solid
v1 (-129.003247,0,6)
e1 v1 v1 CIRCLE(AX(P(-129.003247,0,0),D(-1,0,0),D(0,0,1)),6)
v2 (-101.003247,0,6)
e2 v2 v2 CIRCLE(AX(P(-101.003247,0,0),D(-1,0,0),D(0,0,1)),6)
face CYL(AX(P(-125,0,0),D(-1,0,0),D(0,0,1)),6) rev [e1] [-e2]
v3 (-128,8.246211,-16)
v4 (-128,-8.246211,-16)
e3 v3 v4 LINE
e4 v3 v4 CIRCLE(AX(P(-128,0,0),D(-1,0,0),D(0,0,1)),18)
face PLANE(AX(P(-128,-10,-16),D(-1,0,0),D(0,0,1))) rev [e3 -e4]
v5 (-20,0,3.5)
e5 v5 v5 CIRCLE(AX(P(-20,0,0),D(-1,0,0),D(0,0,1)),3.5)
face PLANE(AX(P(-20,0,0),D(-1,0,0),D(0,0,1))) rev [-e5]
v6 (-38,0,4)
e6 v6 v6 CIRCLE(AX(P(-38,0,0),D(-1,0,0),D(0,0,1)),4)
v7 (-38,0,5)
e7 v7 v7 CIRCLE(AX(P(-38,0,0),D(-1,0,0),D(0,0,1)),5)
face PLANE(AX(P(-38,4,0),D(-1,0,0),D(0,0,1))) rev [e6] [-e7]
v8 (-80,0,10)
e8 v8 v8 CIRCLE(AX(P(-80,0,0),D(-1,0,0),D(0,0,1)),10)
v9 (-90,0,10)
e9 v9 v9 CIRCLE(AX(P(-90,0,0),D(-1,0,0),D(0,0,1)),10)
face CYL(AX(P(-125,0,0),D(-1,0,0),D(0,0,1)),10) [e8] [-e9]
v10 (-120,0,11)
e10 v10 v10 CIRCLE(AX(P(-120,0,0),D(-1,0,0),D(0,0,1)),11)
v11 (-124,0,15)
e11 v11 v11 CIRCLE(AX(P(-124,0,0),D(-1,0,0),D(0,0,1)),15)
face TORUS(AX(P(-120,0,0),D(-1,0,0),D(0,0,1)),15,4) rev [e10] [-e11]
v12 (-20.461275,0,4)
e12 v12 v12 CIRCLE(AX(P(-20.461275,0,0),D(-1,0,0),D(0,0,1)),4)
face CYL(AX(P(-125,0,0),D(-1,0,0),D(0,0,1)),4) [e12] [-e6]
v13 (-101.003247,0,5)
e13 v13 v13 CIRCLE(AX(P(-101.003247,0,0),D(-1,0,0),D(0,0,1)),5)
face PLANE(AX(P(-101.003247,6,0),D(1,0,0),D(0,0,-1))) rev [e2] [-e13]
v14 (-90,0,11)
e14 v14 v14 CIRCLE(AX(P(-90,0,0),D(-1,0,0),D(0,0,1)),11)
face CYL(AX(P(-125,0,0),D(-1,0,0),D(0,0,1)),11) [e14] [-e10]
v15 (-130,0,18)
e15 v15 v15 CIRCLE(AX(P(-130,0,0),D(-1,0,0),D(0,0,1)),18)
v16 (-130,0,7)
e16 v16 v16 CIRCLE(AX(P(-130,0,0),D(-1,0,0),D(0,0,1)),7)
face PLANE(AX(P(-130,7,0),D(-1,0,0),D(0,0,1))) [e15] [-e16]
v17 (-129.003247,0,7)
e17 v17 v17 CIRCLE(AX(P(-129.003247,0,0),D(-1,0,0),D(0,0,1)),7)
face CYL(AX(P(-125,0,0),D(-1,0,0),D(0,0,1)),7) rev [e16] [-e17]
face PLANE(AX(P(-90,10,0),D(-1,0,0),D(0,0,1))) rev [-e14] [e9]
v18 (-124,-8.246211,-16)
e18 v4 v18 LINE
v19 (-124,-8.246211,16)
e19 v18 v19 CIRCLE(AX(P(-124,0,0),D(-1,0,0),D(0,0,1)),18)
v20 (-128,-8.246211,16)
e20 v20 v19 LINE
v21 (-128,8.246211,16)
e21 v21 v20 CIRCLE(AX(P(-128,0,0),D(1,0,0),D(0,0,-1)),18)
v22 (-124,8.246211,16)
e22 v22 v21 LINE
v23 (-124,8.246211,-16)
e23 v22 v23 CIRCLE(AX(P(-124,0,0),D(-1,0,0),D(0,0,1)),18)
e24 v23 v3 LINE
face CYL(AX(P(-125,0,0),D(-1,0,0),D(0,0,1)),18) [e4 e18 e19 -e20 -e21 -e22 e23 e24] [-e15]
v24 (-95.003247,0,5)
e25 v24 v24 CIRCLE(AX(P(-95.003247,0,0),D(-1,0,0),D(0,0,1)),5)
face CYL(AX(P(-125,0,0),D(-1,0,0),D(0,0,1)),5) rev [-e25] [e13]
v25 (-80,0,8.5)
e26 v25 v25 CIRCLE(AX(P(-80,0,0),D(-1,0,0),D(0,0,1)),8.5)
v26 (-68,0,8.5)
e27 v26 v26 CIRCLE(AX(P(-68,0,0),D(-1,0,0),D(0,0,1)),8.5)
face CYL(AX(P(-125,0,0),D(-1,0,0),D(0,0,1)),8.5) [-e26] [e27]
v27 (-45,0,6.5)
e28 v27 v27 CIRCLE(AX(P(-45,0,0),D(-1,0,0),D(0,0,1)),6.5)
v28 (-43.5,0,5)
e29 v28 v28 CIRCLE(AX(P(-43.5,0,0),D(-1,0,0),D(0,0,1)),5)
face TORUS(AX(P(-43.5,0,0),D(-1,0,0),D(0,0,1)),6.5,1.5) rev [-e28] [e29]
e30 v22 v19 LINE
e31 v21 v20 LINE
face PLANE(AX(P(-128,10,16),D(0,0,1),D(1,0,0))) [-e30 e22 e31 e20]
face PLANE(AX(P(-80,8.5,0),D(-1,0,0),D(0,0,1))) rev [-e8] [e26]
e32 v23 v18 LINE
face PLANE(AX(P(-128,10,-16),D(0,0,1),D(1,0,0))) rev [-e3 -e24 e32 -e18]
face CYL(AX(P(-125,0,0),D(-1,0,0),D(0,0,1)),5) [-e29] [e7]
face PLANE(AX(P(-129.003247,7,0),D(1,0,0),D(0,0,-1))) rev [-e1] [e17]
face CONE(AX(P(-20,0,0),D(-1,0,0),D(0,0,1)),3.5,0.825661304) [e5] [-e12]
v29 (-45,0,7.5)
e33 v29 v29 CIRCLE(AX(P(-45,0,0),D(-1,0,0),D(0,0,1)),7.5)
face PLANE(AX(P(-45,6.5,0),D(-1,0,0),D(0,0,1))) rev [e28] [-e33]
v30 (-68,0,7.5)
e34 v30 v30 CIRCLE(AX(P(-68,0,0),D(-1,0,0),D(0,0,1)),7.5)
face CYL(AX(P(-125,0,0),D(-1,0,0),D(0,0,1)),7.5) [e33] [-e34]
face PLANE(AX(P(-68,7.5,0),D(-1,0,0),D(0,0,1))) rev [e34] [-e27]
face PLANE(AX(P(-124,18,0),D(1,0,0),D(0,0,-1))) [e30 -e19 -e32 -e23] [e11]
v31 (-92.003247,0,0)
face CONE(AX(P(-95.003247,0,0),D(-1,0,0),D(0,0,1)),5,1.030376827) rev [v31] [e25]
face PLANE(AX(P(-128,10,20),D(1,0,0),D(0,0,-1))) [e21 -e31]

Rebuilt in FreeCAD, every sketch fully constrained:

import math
import FreeCAD as App
import Part
import Sketcher

V = App.Vector


def add_polygon(sketch, points):
    """Adds a closed chain of lines whose ends are joined by coincident constraints."""
    first, n = sketch.GeometryCount, len(points)
    for a, b in zip(points, points[1:] + points[:1]):
        sketch.addGeometry(Part.LineSegment(App.Vector(*a, 0), App.Vector(*b, 0)), False)
    for i in range(n):
        sketch.addConstraint(Sketcher.Constraint("Coincident", first + i, 2, first + (i + 1) % n, 1))

doc = App.newDocument("Part")
body = doc.addObject("PartDesign::Body", "Body")

sketch1 = doc.addObject("Sketcher::SketchObject", "Sketch")
body.addObject(sketch1)
sketch1.AttachmentSupport = (doc.XY_Plane, [""])
sketch1.MapMode = "FlatFace"
sketch1.addGeometry([
    Part.LineSegment(V(-130, 18, 0), V(-130, 7, 0)),
    Part.LineSegment(V(-130, 7, 0), V(-129, 7, 0)),
    Part.LineSegment(V(-129, 7, 0), V(-129, 6, 0)),
    Part.LineSegment(V(-129, 6, 0), V(-101, 6, 0)),
    Part.LineSegment(V(-101, 6, 0), V(-101, 5, 0)),
    Part.LineSegment(V(-101, 5, 0), V(-95, 5, 0)),
    Part.LineSegment(V(-95, 5, 0), V(-92, 0, 0)),
    Part.LineSegment(V(-92, 0, 0), V(-20, 0, 0)),
    Part.LineSegment(V(-20, 0, 0), V(-20, 3.5, 0)),
    Part.LineSegment(V(-20, 3.5, 0), V(-20.5, 4, 0)),
    Part.LineSegment(V(-20.5, 4, 0), V(-38, 4, 0)),
    Part.LineSegment(V(-38, 4, 0), V(-38, 5, 0)),
    Part.LineSegment(V(-38, 5, 0), V(-43.5, 5, 0)),
    Part.ArcOfCircle(Part.Circle(V(-43.5, 6.5, 0), V(0, 0, 1), 1.5), math.radians(180), math.radians(270)),
    Part.LineSegment(V(-45, 6.5, 0), V(-45, 7.5, 0)),
    Part.LineSegment(V(-45, 7.5, 0), V(-68, 7.5, 0)),
    Part.LineSegment(V(-68, 7.5, 0), V(-68, 8.5, 0)),
    Part.LineSegment(V(-68, 8.5, 0), V(-80, 8.5, 0)),
    Part.LineSegment(V(-80, 8.5, 0), V(-80, 10, 0)),
    Part.LineSegment(V(-80, 10, 0), V(-90, 10, 0)),
    Part.LineSegment(V(-90, 10, 0), V(-90, 11, 0)),
    Part.LineSegment(V(-90, 11, 0), V(-120, 11, 0)),
    Part.ArcOfCircle(Part.Circle(V(-120, 15, 0), V(0, 0, 1), 4), math.radians(180), math.radians(270)),
    Part.LineSegment(V(-124, 15, 0), V(-124, 18, 0)),
    Part.LineSegment(V(-124, 18, 0), V(-130, 18, 0)),
], False)
sketch1.addConstraint([
    Sketcher.Constraint("Coincident", 0, 2, 1, 1),
    Sketcher.Constraint("Coincident", 1, 2, 2, 1),
    Sketcher.Constraint("Coincident", 2, 2, 3, 1),
    Sketcher.Constraint("Coincident", 3, 2, 4, 1),
    Sketcher.Constraint("Coincident", 4, 2, 5, 1),
    Sketcher.Constraint("Coincident", 5, 2, 6, 1),
    Sketcher.Constraint("Coincident", 6, 2, 7, 1),
    Sketcher.Constraint("Coincident", 7, 2, 8, 1),
    Sketcher.Constraint("Coincident", 8, 2, 9, 1),
    Sketcher.Constraint("Coincident", 9, 2, 10, 1),
    Sketcher.Constraint("Coincident", 10, 2, 11, 1),
    Sketcher.Constraint("Coincident", 11, 2, 12, 1),
    Sketcher.Constraint("Tangent", 12, 2, 13, 2),
    Sketcher.Constraint("Tangent", 13, 1, 14, 1),
    Sketcher.Constraint("Coincident", 14, 2, 15, 1),
    Sketcher.Constraint("Coincident", 15, 2, 16, 1),
    Sketcher.Constraint("Coincident", 16, 2, 17, 1),
    Sketcher.Constraint("Coincident", 17, 2, 18, 1),
    Sketcher.Constraint("Coincident", 18, 2, 19, 1),
    Sketcher.Constraint("Coincident", 19, 2, 20, 1),
    Sketcher.Constraint("Coincident", 20, 2, 21, 1),
    Sketcher.Constraint("Tangent", 21, 2, 22, 2),
    Sketcher.Constraint("Tangent", 22, 1, 23, 1),
    Sketcher.Constraint("Coincident", 23, 2, 24, 1),
    Sketcher.Constraint("Coincident", 24, 2, 0, 1),
    Sketcher.Constraint("Vertical", 0),
    Sketcher.Constraint("Horizontal", 1),
    Sketcher.Constraint("Vertical", 2),
    Sketcher.Constraint("Horizontal", 3),
    Sketcher.Constraint("Vertical", 4),
    Sketcher.Constraint("Horizontal", 5),
    Sketcher.Constraint("Horizontal", 7),
    Sketcher.Constraint("Vertical", 8),
    Sketcher.Constraint("Horizontal", 10),
    Sketcher.Constraint("Vertical", 11),
    Sketcher.Constraint("Horizontal", 12),
    Sketcher.Constraint("Vertical", 14),
    Sketcher.Constraint("Horizontal", 15),
    Sketcher.Constraint("Vertical", 16),
    Sketcher.Constraint("Horizontal", 17),
    Sketcher.Constraint("Vertical", 18),
    Sketcher.Constraint("Horizontal", 19),
    Sketcher.Constraint("Vertical", 20),
    Sketcher.Constraint("Horizontal", 21),
    Sketcher.Constraint("Vertical", 23),
    Sketcher.Constraint("Horizontal", 24),
    Sketcher.Constraint("PointOnObject", 6, 2, -1),
    Sketcher.Constraint("Horizontal", 5, 2, 11, 2),
    Sketcher.Constraint("Equal", 5, 24),
    Sketcher.Constraint("Equal", 2, 4),
    Sketcher.Constraint("Equal", 4, 11),
    Sketcher.Constraint("Equal", 11, 14),
    Sketcher.Constraint("Equal", 14, 16),
    Sketcher.Constraint("Equal", 16, 20),
    Sketcher.Constraint("Radius", 22, 4.0),
    Sketcher.Constraint("Radius", 13, 1.5),
    Sketcher.Constraint("DistanceX", 3, 1, 3, 2, 28.0),
    Sketcher.Constraint("DistanceX", 5, 1, 5, 2, 6.0),
    Sketcher.Constraint("DistanceX", 15, 2, 15, 1, 23.0),
    Sketcher.Constraint("DistanceX", 17, 2, 17, 1, 12.0),
    Sketcher.Constraint("DistanceX", 19, 2, 19, 1, 10.0),
    Sketcher.Constraint("DistanceX", 21, 2, 21, 1, 30.0),
    Sketcher.Constraint("DistanceY", 0, 2, 0, 1, 11.0),
    Sketcher.Constraint("DistanceY", 2, 2, 2, 1, 1.0),
    Sketcher.Constraint("DistanceY", 23, 1, 23, 2, 3.0),
    Sketcher.Constraint("DistanceX", 12, 2, 12, 1, 5.5),
    Sketcher.Constraint("DistanceY", 8, 1, 8, 2, 3.5),
    Sketcher.Constraint("DistanceX", 22, 3, -1, 1, 120.0),
    Sketcher.Constraint("DistanceY", -1, 1, 22, 3, 15.0),
    Sketcher.Constraint("DistanceX", 7, 2, -1, 1, 20.0),
    Sketcher.Constraint("DistanceX", 5, 2, 6, 2, 3.0),
    Sketcher.Constraint("DistanceX", 1, 1, 1, 2, 0.996753),
    Sketcher.Constraint("DistanceX", 10, 2, 10, 1, 17.538725),
])
revolution = doc.addObject("PartDesign::Revolution", "Revolution")
body.addObject(revolution)
revolution.Profile = sketch1
revolution.ReferenceAxis = (sketch1, ["H_Axis"])
revolution.Angle = 360

sketch2 = doc.addObject("Sketcher::SketchObject", "Sketch001")
body.addObject(sketch2)
sketch2.AttachmentSupport = (doc.YZ_Plane, [""])
sketch2.MapMode = "FlatFace"
sketch2.AttachmentOffset = App.Placement(V(0, 0, -124), App.Rotation())
add_polygon(sketch2, [(10, 20), (-10, 20), (-10, 16), (10, 16)])
add_polygon(sketch2, [(10, -16), (-10, -16), (-10, -20), (10, -20)])
sketch2.addConstraint([
    Sketcher.Constraint("Horizontal", 0),
    Sketcher.Constraint("Vertical", 1),
    Sketcher.Constraint("Horizontal", 2),
    Sketcher.Constraint("Vertical", 3),
    Sketcher.Constraint("Horizontal", 4),
    Sketcher.Constraint("Vertical", 5),
    Sketcher.Constraint("Horizontal", 6),
    Sketcher.Constraint("Vertical", 7),
    Sketcher.Constraint("Symmetric", 2, 2, 4, 2, -1, 1),
    Sketcher.Constraint("Symmetric", 0, 2, 6, 2, -1, 1),
    Sketcher.Constraint("Vertical", 1, 2, 4, 2),
    Sketcher.Constraint("DistanceX", 0, 2, 0, 1, 20.0),
    Sketcher.Constraint("DistanceY", 1, 2, 1, 1, 4.0),
    Sketcher.Constraint("DistanceY", -1, 1, 0, 2, 20.0),
])
pocket1 = doc.addObject("PartDesign::Pocket", "Pocket")
body.addObject(pocket1)
pocket1.Profile = sketch2
pocket1.Length = 4

doc.recompute()
